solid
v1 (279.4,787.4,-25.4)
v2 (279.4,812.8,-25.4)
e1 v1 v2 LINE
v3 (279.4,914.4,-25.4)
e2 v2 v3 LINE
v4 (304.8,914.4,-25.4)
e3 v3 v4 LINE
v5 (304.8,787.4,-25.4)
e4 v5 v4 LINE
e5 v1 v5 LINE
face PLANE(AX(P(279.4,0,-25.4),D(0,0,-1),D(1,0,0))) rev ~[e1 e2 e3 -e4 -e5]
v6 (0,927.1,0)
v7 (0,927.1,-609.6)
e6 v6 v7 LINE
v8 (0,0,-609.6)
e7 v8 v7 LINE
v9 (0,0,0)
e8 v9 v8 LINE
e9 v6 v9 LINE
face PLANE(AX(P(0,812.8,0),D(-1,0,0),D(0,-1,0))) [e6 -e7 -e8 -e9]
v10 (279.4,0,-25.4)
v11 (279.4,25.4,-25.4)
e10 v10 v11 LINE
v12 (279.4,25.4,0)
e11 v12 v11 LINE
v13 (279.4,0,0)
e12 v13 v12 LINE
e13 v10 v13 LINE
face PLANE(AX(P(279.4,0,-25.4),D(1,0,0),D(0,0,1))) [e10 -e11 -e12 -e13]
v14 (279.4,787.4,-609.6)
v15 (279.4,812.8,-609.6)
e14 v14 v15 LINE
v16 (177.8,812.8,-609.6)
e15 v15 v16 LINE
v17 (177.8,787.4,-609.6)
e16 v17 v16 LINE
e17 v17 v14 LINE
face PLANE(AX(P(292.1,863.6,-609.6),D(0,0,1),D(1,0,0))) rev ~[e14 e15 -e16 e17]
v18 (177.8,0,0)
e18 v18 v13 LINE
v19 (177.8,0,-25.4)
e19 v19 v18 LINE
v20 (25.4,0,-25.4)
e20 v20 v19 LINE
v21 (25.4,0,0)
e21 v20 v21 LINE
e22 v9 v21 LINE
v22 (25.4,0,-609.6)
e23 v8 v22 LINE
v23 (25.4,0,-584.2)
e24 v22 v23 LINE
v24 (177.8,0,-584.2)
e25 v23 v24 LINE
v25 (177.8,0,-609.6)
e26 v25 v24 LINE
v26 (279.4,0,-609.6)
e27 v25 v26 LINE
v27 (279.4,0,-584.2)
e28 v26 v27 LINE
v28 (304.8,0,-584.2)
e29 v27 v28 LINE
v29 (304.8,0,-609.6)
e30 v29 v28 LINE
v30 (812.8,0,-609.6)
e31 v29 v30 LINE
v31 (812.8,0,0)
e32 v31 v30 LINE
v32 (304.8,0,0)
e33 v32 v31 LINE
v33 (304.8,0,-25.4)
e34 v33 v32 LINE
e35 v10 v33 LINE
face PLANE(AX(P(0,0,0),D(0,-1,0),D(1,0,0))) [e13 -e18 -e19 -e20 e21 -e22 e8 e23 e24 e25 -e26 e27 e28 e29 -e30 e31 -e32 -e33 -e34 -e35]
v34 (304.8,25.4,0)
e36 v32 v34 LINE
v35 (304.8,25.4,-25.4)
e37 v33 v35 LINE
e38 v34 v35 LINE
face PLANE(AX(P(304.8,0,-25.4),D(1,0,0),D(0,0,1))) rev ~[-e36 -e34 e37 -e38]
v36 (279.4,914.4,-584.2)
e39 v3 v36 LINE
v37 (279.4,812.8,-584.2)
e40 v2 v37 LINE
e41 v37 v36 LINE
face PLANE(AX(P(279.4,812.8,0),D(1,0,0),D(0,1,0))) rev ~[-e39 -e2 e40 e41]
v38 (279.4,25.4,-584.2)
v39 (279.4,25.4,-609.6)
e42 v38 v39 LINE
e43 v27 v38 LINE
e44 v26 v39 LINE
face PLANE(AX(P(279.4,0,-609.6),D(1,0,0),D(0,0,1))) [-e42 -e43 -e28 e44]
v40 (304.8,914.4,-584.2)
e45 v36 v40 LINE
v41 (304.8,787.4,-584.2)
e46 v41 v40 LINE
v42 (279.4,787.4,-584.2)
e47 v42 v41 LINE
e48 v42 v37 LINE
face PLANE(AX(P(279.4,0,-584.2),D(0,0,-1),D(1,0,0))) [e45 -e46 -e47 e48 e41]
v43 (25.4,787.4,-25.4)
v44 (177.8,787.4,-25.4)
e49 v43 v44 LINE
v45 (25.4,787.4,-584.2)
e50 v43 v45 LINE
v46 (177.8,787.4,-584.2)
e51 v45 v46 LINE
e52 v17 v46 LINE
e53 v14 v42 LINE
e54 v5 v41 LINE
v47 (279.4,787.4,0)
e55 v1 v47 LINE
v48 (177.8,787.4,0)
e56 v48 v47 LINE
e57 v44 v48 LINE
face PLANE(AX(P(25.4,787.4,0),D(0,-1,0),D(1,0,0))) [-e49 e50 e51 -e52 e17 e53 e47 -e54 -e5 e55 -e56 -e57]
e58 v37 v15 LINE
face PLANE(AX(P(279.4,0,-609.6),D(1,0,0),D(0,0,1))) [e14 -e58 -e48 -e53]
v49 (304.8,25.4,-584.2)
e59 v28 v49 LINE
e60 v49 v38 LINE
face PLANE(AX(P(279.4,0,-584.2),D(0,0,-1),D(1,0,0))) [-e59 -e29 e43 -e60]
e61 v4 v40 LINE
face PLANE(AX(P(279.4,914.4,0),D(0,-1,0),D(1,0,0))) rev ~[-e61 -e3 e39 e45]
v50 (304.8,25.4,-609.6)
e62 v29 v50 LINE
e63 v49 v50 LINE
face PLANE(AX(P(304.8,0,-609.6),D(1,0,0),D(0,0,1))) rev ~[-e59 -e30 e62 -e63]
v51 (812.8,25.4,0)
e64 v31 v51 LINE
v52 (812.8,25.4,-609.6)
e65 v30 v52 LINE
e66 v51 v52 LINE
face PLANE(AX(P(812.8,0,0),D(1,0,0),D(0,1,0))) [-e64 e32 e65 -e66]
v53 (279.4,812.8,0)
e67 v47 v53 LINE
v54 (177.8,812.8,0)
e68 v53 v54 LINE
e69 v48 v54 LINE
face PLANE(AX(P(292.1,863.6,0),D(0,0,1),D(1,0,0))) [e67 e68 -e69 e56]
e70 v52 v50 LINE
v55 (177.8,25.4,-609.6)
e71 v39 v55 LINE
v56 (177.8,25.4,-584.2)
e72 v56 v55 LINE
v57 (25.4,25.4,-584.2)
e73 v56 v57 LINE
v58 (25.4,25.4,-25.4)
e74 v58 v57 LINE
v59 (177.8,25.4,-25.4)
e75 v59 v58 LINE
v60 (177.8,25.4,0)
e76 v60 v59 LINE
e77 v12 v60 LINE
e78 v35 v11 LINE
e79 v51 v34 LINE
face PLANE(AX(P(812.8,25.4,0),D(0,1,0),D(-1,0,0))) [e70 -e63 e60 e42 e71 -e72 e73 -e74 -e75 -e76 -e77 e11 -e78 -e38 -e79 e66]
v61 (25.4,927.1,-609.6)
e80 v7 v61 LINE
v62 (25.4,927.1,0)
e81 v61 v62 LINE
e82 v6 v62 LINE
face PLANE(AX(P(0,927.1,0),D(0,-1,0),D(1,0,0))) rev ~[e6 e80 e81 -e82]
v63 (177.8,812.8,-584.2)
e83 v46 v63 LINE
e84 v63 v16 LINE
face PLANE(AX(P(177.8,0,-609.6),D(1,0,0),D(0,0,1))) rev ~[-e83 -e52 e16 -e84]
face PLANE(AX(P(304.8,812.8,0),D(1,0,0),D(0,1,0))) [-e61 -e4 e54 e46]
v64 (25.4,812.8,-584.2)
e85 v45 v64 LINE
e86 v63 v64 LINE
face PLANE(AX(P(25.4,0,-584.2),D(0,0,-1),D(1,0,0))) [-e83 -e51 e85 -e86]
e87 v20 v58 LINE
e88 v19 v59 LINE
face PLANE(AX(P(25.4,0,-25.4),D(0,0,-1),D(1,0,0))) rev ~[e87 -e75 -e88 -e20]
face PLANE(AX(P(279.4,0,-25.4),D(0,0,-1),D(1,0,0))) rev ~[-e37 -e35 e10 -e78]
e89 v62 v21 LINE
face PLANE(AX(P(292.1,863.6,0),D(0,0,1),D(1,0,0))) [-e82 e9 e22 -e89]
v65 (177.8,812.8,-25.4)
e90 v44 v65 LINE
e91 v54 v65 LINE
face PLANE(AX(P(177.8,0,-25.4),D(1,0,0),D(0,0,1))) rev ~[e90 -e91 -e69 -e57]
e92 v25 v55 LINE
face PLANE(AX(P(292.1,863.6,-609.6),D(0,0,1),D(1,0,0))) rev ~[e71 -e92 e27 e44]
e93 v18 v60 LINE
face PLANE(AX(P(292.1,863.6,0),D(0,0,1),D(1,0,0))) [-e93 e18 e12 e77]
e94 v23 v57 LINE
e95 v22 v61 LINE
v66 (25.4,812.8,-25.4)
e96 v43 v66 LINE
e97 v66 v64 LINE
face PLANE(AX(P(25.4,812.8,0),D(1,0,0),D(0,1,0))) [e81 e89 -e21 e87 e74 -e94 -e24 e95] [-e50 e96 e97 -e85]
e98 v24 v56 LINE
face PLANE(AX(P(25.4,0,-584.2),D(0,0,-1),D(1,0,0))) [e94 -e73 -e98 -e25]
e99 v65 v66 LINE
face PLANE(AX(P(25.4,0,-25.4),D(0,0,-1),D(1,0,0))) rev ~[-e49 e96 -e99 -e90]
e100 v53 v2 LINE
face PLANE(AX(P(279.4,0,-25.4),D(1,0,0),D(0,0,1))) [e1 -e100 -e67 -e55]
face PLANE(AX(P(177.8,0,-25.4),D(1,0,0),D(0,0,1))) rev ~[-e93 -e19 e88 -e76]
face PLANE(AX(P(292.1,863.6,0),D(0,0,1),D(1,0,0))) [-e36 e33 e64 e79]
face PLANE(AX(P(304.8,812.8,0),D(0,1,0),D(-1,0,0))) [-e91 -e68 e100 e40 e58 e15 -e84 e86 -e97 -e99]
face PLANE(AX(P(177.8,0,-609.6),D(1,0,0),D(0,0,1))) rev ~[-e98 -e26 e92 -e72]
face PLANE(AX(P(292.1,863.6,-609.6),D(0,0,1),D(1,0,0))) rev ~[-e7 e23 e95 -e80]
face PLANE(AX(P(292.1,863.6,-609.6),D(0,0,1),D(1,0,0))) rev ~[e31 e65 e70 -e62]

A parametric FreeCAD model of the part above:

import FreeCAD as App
import Part
import Sketcher
Q = App.Units.Quantity

doc = App.newDocument("Part")
body = doc.addObject("PartDesign::Body", "Body")

# Sketch on XY plane
sketch1 = body.newObject("Sketcher::SketchObject", "Sketch")
sketch1.AttachmentSupport = (doc.getObject("XY_Plane"), [""])
sketch1.MapMode = "FlatFace"
sketch1.addGeometry(Part.LineSegment(App.Vector(304.8, 812.8, 0), App.Vector(0, 812.8, 0)), False)
sketch1.addGeometry(Part.LineSegment(App.Vector(0, 812.8, 0), App.Vector(0, 0, 0)), False)
sketch1.addGeometry(Part.LineSegment(App.Vector(0, 0, 0), App.Vector(812.8, 0, 0)), False)
sketch1.addGeometry(Part.LineSegment(App.Vector(812.8, 0, 0), App.Vector(812.8, 25.4, 0)), False)
sketch1.addGeometry(Part.LineSegment(App.Vector(812.8, 25.4, 0), App.Vector(25.4, 25.4, 0)), False)
sketch1.addGeometry(Part.LineSegment(App.Vector(25.4, 25.4, 0), App.Vector(25.4, 787.4, 0)), False)
sketch1.addGeometry(Part.LineSegment(App.Vector(25.4, 787.4, 0), App.Vector(304.8, 787.4, 0)), False)
sketch1.addGeometry(Part.LineSegment(App.Vector(304.8, 787.4, 0), App.Vector(304.8, 812.8, 0)), False)
sketch1.addConstraint(Sketcher.Constraint("Coincident", 0, 2, 1, 1))
sketch1.addConstraint(Sketcher.Constraint("Coincident", 1, 2, 2, 1))
sketch1.addConstraint(Sketcher.Constraint("Coincident", 2, 2, 3, 1))
sketch1.addConstraint(Sketcher.Constraint("Coincident", 3, 2, 4, 1))
sketch1.addConstraint(Sketcher.Constraint("Coincident", 4, 2, 5, 1))
sketch1.addConstraint(Sketcher.Constraint("Coincident", 5, 2, 6, 1))
sketch1.addConstraint(Sketcher.Constraint("Coincident", 6, 2, 7, 1))
sketch1.addConstraint(Sketcher.Constraint("Coincident", 7, 2, 0, 1))
sketch1.addConstraint(Sketcher.Constraint("Horizontal", 0))
sketch1.addConstraint(Sketcher.Constraint("Vertical", 1))
sketch1.addConstraint(Sketcher.Constraint("Horizontal", 2))
sketch1.addConstraint(Sketcher.Constraint("Vertical", 3))
sketch1.addConstraint(Sketcher.Constraint("Horizontal", 4))
sketch1.addConstraint(Sketcher.Constraint("Vertical", 5))
sketch1.addConstraint(Sketcher.Constraint("Horizontal", 6))
sketch1.addConstraint(Sketcher.Constraint("Vertical", 7))
sketch1.addConstraint(Sketcher.Constraint("Coincident", 1, 2, -1, 1))
sketch1.addConstraint(Sketcher.Constraint("Equal", 2, 1))
sketch1.addConstraint(Sketcher.Constraint("Equal", 3, 7))
sketch1.addConstraint(Sketcher.Constraint("DistanceX", 0, 2, 0, 1, Q("12 in")))
sketch1.addConstraint(Sketcher.Constraint("DistanceX", 2, 1, 2, 2, Q("32 in")))
sketch1.addConstraint(Sketcher.Constraint("DistanceX", 4, 2, 4, 1, Q("31 in")))
sketch1.addConstraint(Sketcher.Constraint("DistanceY", 3, 1, 3, 2, Q("1 in")))
pad1 = body.newObject("PartDesign::Pad", "Pad")
pad1.Profile = sketch1
pad1.Length = Q("24 in")
pad1.Reversed = True

# Sketch on XY plane
sketch2 = body.newObject("Sketcher::SketchObject", "Sketch001")
sketch2.AttachmentSupport = (doc.getObject("XY_Plane"), [""])
sketch2.MapMode = "FlatFace"
sketch2.addGeometry(Part.LineSegment(App.Vector(279.4, 914.4, 0), App.Vector(279.4, 812.8, 0)), False)
sketch2.addGeometry(Part.LineSegment(App.Vector(279.4, 812.8, 0), App.Vector(304.8, 812.8, 0)), False)
sketch2.addGeometry(Part.LineSegment(App.Vector(304.8, 812.8, 0), App.Vector(304.8, 914.4, 0)), False)
sketch2.addGeometry(Part.LineSegment(App.Vector(304.8, 914.4, 0), App.Vector(279.4, 914.4, 0)), False)
sketch2.addGeometry(Part.LineSegment(App.Vector(0, 927.1, 0), App.Vector(0, 812.8, 0)), False)
sketch2.addGeometry(Part.LineSegment(App.Vector(0, 812.8, 0), App.Vector(25.4, 812.8, 0)), False)
sketch2.addGeometry(Part.LineSegment(App.Vector(25.4, 812.8, 0), App.Vector(25.4, 927.1, 0)), False)
sketch2.addGeometry(Part.LineSegment(App.Vector(25.4, 927.1, 0), App.Vector(0, 927.1, 0)), False)
sketch2.addConstraint(Sketcher.Constraint("Coincident", 0, 2, 1, 1))
sketch2.addConstraint(Sketcher.Constraint("Coincident", 1, 2, 2, 1))
sketch2.addConstraint(Sketcher.Constraint("Coincident", 2, 2, 3, 1))
sketch2.addConstraint(Sketcher.Constraint("Coincident", 3, 2, 0, 1))
sketch2.addConstraint(Sketcher.Constraint("Coincident", 4, 2, 5, 1))
sketch2.addConstraint(Sketcher.Constraint("Coincident", 5, 2, 6, 1))
sketch2.addConstraint(Sketcher.Constraint("Coincident", 6, 2, 7, 1))
sketch2.addConstraint(Sketcher.Constraint("Coincident", 7, 2, 4, 1))
sketch2.addConstraint(Sketcher.Constraint("Vertical", 0))
sketch2.addConstraint(Sketcher.Constraint("Horizontal", 1))
sketch2.addConstraint(Sketcher.Constraint("Vertical", 2))
sketch2.addConstraint(Sketcher.Constraint("Horizontal", 3))
sketch2.addConstraint(Sketcher.Constraint("Vertical", 4))
sketch2.addConstraint(Sketcher.Constraint("Horizontal", 5))
sketch2.addConstraint(Sketcher.Constraint("Vertical", 6))
sketch2.addConstraint(Sketcher.Constraint("Horizontal", 7))
sketch2.addConstraint(Sketcher.Constraint("PointOnObject", 4, 2, -2))
sketch2.addConstraint(Sketcher.Constraint("Horizontal", 1, 2, 4, 2))
sketch2.addConstraint(Sketcher.Constraint("Equal", 3, 5))
sketch2.addConstraint(Sketcher.Constraint("DistanceX", 1, 1, 1, 2, Q("1 in")))
sketch2.addConstraint(Sketcher.Constraint("DistanceY", 0, 2, 0, 1, Q("4 in")))
sketch2.addConstraint(Sketcher.Constraint("DistanceY", 4, 2, 4, 1, Q("4.5 in")))
sketch2.addConstraint(Sketcher.Constraint("DistanceX", -1, 1, 0, 2, Q("11 in")))
sketch2.addConstraint(Sketcher.Constraint("DistanceY", -1, 1, 0, 2, Q("32 in")))
pad2 = body.newObject("PartDesign::Pad", "Pad001")
pad2.Profile = sketch2
pad2.Length = Q("24 in")
pad2.Reversed = True

# Sketch on XZ plane
sketch3 = body.newObject("Sketcher::SketchObject", "Sketch002")
sketch3.AttachmentSupport = (doc.getObject("XZ_Plane"), [""])
sketch3.MapMode = "FlatFace"
sketch3.addGeometry(Part.LineSegment(App.Vector(25.4, 0, 0), App.Vector(25.4, -25.4, 0)), False)
sketch3.addGeometry(Part.LineSegment(App.Vector(25.4, -25.4, 0), App.Vector(177.8, -25.4, 0)), False)
sketch3.addGeometry(Part.LineSegment(App.Vector(177.8, -25.4, 0), App.Vector(177.8, 0, 0)), False)
sketch3.addGeometry(Part.LineSegment(App.Vector(177.8, 0, 0), App.Vector(25.4, 0, 0)), False)
sketch3.addGeometry(Part.LineSegment(App.Vector(279.4, 0, 0), App.Vector(279.4, -25.4, 0)), False)
sketch3.addGeometry(Part.LineSegment(App.Vector(279.4, -25.4, 0), App.Vector(304.8, -25.4, 0)), False)
sketch3.addGeometry(Part.LineSegment(App.Vector(304.8, -25.4, 0), App.Vector(304.8, 0, 0)), False)
sketch3.addGeometry(Part.LineSegment(App.Vector(304.8, 0, 0), App.Vector(279.4, 0, 0)), False)
sketch3.addGeometry(Part.LineSegment(App.Vector(25.4, -584.2, 0), App.Vector(25.4, -609.6, 0)), False)
sketch3.addGeometry(Part.LineSegment(App.Vector(25.4, -609.6, 0), App.Vector(177.8, -609.6, 0)), False)
sketch3.addGeometry(Part.LineSegment(App.Vector(177.8, -609.6, 0), App.Vector(177.8, -584.2, 0)), False)
sketch3.addGeometry(Part.LineSegment(App.Vector(177.8, -584.2, 0), App.Vector(25.4, -584.2, 0)), False)
sketch3.addGeometry(Part.LineSegment(App.Vector(279.4, -584.2, 0), App.Vector(279.4, -609.6, 0)), False)
sketch3.addGeometry(Part.LineSegment(App.Vector(279.4, -609.6, 0), App.Vector(304.8, -609.6, 0)), False)
sketch3.addGeometry(Part.LineSegment(App.Vector(304.8, -609.6, 0), App.Vector(304.8, -584.2, 0)), False)
sketch3.addGeometry(Part.LineSegment(App.Vector(304.8, -584.2, 0), App.Vector(279.4, -584.2, 0)), False)
sketch3.addConstraint(Sketcher.Constraint("Coincident", 0, 2, 1, 1))
sketch3.addConstraint(Sketcher.Constraint("Coincident", 1, 2, 2, 1))
sketch3.addConstraint(Sketcher.Constraint("Coincident", 2, 2, 3, 1))
sketch3.addConstraint(Sketcher.Constraint("Coincident", 3, 2, 0, 1))
sketch3.addConstraint(Sketcher.Constraint("Coincident", 4, 2, 5, 1))
sketch3.addConstraint(Sketcher.Constraint("Coincident", 5, 2, 6, 1))
sketch3.addConstraint(Sketcher.Constraint("Coincident", 6, 2, 7, 1))
sketch3.addConstraint(Sketcher.Constraint("Coincident", 7, 2, 4, 1))
sketch3.addConstraint(Sketcher.Constraint("Coincident", 8, 2, 9, 1))
sketch3.addConstraint(Sketcher.Constraint("Coincident", 9, 2, 10, 1))
sketch3.addConstraint(Sketcher.Constraint("Coincident", 10, 2, 11, 1))
sketch3.addConstraint(Sketcher.Constraint("Coincident", 11, 2, 8, 1))
sketch3.addConstraint(Sketcher.Constraint("Coincident", 12, 2, 13, 1))
sketch3.addConstraint(Sketcher.Constraint("Coincident", 13, 2, 14, 1))
sketch3.addConstraint(Sketcher.Constraint("Coincident", 14, 2, 15, 1))
sketch3.addConstraint(Sketcher.Constraint("Coincident", 15, 2, 12, 1))
sketch3.addConstraint(Sketcher.Constraint("Vertical", 0))
sketch3.addConstraint(Sketcher.Constraint("Horizontal", 1))
sketch3.addConstraint(Sketcher.Constraint("Vertical", 2))
sketch3.addConstraint(Sketcher.Constraint("Horizontal", 3))
sketch3.addConstraint(Sketcher.Constraint("Vertical", 4))
sketch3.addConstraint(Sketcher.Constraint("Horizontal", 5))
sketch3.addConstraint(Sketcher.Constraint("Vertical", 6))
sketch3.addConstraint(Sketcher.Constraint("Horizontal", 7))
sketch3.addConstraint(Sketcher.Constraint("Vertical", 8))
sketch3.addConstraint(Sketcher.Constraint("Horizontal", 9))
sketch3.addConstraint(Sketcher.Constraint("Vertical", 10))
sketch3.addConstraint(Sketcher.Constraint("Horizontal", 11))
sketch3.addConstraint(Sketcher.Constraint("Vertical", 12))
sketch3.addConstraint(Sketcher.Constraint("Horizontal", 13))
sketch3.addConstraint(Sketcher.Constraint("Vertical", 14))
sketch3.addConstraint(Sketcher.Constraint("Horizontal", 15))
sketch3.addConstraint(Sketcher.Constraint("PointOnObject", 2, 2, -1))
sketch3.addConstraint(Sketcher.Constraint("PointOnObject", 6, 2, -1))
sketch3.addConstraint(Sketcher.Constraint("Horizontal", 1, 2, 4, 2))
sketch3.addConstraint(Sketcher.Constraint("Horizontal", 9, 2, 12, 2))
sketch3.addConstraint(Sketcher.Constraint("Horizontal", 11, 2, 14, 2))
sketch3.addConstraint(Sketcher.Constraint("Vertical", 3, 2, 8, 2))
sketch3.addConstraint(Sketcher.Constraint("Vertical", 2, 2, 9, 2))
sketch3.addConstraint(Sketcher.Constraint("Vertical", 7, 2, 12, 2))
sketch3.addConstraint(Sketcher.Constraint("Vertical", 6, 2, 13, 2))
sketch3.addConstraint(Sketcher.Constraint("Equal", 15, 0))
sketch3.addConstraint(Sketcher.Constraint("Equal", 6, 8))
sketch3.addConstraint(Sketcher.Constraint("DistanceX", 1, 1, 1, 2, Q("6 in")))
sketch3.addConstraint(Sketcher.Constraint("DistanceX", 5, 1, 5, 2, Q("1 in")))
sketch3.addConstraint(Sketcher.Constraint("DistanceX", -1, 1, 0, 2, Q("1 in")))
sketch3.addConstraint(Sketcher.Constraint("DistanceX", -1, 1, 4, 2, Q("11 in")))
sketch3.addConstraint(Sketcher.Constraint("DistanceY", 8, 2, -1, 1, Q("24 in")))
pocket1 = body.newObject("PartDesign::Pocket", "Pocket")
pocket1.Profile = sketch3
pocket1.Length = Q("80 in")

doc.recompute()
